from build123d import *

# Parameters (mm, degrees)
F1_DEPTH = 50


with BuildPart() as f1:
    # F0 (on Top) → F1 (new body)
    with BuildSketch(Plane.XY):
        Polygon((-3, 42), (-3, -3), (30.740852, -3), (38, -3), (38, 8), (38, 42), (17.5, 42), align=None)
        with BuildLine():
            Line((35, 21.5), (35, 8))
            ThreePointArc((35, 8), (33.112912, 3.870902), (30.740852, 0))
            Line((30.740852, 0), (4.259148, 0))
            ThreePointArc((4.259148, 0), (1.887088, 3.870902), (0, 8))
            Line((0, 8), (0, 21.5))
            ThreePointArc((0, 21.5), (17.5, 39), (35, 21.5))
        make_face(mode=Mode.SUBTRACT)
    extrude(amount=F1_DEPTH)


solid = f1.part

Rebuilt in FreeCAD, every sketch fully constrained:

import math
import FreeCAD as App
import Part
import Sketcher

V = App.Vector

doc = App.newDocument("Part")
params = doc.addObject("Spreadsheet::Sheet", "Params")
for row, (alias, value) in enumerate([
    ("sketch1_radius", "17.5 mm"),
    ("sketch1_width", "41 mm"),
    ("sketch1_height", "45 mm"),
    ("sketch1_height2", "13.5 mm"),
    ("pad1_length", "50 mm"),
], start=1):
    params.set(f"A{row}", alias)
    params.set(f"B{row}", "=" + value)
    params.setAlias(f"B{row}", alias)

body = doc.addObject("PartDesign::Body", "Body")

sketch1 = body.newObject("Sketcher::SketchObject", "Sketch")
sketch1.AttachmentSupport = (doc.getObject("XY_Plane"), [""])
sketch1.MapMode = "FlatFace"
sketch1.addGeometry([
    Part.LineSegment(V(-3, 42, 0), V(-3, -3, 0)),
    Part.LineSegment(V(-3, -3, 0), V(38, -3, 0)),
    Part.LineSegment(V(38, -3, 0), V(38, 42, 0)),
    Part.LineSegment(V(38, 42, 0), V(-3, 42, 0)),
    Part.ArcOfCircle(Part.Circle(V(18, 22, 0), V(0, 0, 1), 18), math.radians(0), math.radians(180)),
    Part.LineSegment(V(35, 22, 0), V(35, 8, 0)),
    Part.ArcOfCircle(Part.Circle(V(0, 21, 0), V(0, 0, 1), 38), math.radians(-34.97), math.radians(-21.09)),
    Part.LineSegment(V(31, 0, 0), V(4, 0, 0)),
    Part.ArcOfCircle(Part.Circle(V(35, 21, 0), V(0, 0, 1), 38), math.radians(-158.91), math.radians(-145.03)),
    Part.LineSegment(V(0, 8, 0), V(0, 22, 0)),
], False)
sketch1.addConstraint([
    Sketcher.Constraint("Coincident", 0, 2, 1, 1),
    Sketcher.Constraint("Coincident", 1, 2, 2, 1),
    Sketcher.Constraint("Coincident", 2, 2, 3, 1),
    Sketcher.Constraint("Coincident", 3, 2, 0, 1),
    Sketcher.Constraint("Tangent", 4, 1, 5, 1),
    Sketcher.Constraint("Coincident", 5, 2, 6, 2),
    Sketcher.Constraint("Coincident", 6, 1, 7, 1),
    Sketcher.Constraint("Coincident", 7, 2, 8, 2),
    Sketcher.Constraint("Coincident", 8, 1, 9, 1),
    Sketcher.Constraint("Tangent", 9, 2, 4, 2),
    Sketcher.Constraint("Vertical", 0),
    Sketcher.Constraint("Horizontal", 1),
    Sketcher.Constraint("Vertical", 2),
    Sketcher.Constraint("Horizontal", 3),
    Sketcher.Constraint("Vertical", 5),
    Sketcher.Constraint("Horizontal", 7),
    Sketcher.Constraint("Vertical", 9),
    Sketcher.Constraint("Equal", 6, 8),
    Sketcher.Constraint("PointOnObject", 6, 1, -1),
    Sketcher.Constraint("PointOnObject", 8, 1, -2),
    Sketcher.Constraint("Horizontal", 6, 3, 8, 3),
    Sketcher.Constraint("Horizontal", 5, 2, 8, 1),
    Sketcher.Constraint("Radius", 4, 17.5),
    Sketcher.Constraint("DistanceX", 1, 1, 1, 2, 41.0),
    Sketcher.Constraint("DistanceY", 0, 2, 0, 1, 45.0),
    Sketcher.Constraint("DistanceY", 5, 2, 5, 1, 13.5),
    Sketcher.Constraint("DistanceX", 0, 2, -1, 1, 3.0),
    Sketcher.Constraint("DistanceY", 0, 2, -1, 1, 3.0),
    Sketcher.Constraint("DistanceY", -1, 1, 5, 2, 8.0),
    Sketcher.Constraint("Radius", 6, 37.513247),
    Sketcher.Constraint("DistanceX", 7, 2, 7, 1, 26.481704),
])
sketch1.setExpression("Constraints[22]", "Params.sketch1_radius")
sketch1.setExpression("Constraints[23]", "Params.sketch1_width")
sketch1.setExpression("Constraints[24]", "Params.sketch1_height")
sketch1.setExpression("Constraints[25]", "Params.sketch1_height2")
pad1 = body.newObject("PartDesign::Pad", "Pad")
pad1.Profile = sketch1
pad1.setExpression("Length", "Params.pad1_length")

doc.recompute()
